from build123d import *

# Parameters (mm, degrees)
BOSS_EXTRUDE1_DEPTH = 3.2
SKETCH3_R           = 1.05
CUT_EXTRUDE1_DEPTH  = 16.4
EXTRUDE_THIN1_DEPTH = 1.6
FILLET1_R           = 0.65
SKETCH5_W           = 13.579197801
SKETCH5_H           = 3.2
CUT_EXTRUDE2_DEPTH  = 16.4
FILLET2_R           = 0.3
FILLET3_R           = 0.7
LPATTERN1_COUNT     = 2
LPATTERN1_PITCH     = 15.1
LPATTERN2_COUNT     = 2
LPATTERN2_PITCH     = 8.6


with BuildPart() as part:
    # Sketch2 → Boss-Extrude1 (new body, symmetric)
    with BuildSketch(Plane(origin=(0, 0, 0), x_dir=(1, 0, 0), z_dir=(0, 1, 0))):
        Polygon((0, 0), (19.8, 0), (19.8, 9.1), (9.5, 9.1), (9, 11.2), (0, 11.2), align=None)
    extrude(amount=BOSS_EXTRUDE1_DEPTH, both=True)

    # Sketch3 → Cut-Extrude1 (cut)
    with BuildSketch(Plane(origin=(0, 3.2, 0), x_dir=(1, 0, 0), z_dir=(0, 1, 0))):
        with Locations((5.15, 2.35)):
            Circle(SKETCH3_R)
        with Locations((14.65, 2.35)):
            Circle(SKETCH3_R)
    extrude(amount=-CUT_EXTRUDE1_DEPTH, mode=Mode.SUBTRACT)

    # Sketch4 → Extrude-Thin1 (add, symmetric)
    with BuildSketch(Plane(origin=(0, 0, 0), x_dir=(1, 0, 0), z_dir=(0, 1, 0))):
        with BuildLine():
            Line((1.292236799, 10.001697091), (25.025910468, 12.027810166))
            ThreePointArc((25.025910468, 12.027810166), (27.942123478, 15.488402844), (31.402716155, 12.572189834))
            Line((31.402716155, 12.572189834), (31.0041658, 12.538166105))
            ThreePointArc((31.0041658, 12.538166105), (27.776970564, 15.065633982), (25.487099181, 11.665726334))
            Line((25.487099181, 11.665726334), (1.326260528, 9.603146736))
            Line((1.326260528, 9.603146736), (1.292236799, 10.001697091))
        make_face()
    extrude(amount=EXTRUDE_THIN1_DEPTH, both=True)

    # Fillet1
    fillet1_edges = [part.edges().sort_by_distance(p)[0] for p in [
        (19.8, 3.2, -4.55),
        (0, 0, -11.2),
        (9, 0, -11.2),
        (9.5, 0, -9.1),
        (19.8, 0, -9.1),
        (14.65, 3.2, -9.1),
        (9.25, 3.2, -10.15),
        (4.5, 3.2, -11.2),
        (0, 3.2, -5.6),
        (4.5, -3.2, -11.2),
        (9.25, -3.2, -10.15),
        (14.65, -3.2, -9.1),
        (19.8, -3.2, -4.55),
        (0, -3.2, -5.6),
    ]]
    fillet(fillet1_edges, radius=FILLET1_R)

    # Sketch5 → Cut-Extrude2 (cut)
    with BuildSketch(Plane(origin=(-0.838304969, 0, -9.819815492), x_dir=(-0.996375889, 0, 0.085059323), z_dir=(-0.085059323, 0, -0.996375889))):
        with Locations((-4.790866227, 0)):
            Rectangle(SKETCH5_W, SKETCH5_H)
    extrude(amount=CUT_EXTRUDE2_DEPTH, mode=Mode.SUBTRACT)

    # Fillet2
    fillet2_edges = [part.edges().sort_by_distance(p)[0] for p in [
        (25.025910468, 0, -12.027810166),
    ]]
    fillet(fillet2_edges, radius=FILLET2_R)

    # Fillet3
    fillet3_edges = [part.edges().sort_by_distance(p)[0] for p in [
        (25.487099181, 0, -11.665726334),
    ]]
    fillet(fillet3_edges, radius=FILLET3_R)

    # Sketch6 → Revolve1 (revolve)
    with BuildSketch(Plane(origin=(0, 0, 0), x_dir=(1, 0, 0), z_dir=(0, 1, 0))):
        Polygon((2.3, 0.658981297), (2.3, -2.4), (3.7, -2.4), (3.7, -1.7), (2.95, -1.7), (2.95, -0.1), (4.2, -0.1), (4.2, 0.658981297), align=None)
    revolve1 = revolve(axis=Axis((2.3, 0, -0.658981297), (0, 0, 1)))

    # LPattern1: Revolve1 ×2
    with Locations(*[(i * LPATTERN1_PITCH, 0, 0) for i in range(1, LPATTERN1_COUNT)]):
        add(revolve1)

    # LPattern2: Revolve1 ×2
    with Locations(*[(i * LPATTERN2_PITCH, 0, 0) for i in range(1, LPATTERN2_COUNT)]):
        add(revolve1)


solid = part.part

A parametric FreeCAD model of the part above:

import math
import FreeCAD as App
import Part
import Sketcher
from FreeCAD import Vector
Q = App.Units.Quantity


def edges_at(feature, points):
    """Names of the edges that pass closest to the given points."""
    edges = feature.Shape.Edges
    near = lambda p: min(range(len(edges)), key=lambda i: edges[i].distToShape(Part.Vertex(*p))[0])
    return sorted({f"Edge{near(p) + 1}" for p in points})

doc = App.newDocument("Part")
body = doc.addObject("PartDesign::Body", "Body")

# Sketch on XZ plane
sketch1 = body.newObject("Sketcher::SketchObject", "Sketch")
sketch1.AttachmentSupport = (doc.getObject("XZ_Plane"), [""])
sketch1.MapMode = "FlatFace"
sketch1.addGeometry([
    Part.LineSegment(Vector(0, 0, 0), Vector(19.8, 0, 0)),  # 0
    Part.LineSegment(Vector(19.8, 0, 0), Vector(19.8, -9.1, 0)),  # 1
    Part.LineSegment(Vector(19.8, -9.1, 0), Vector(9.5, -9.1, 0)),  # 2
    Part.LineSegment(Vector(9.5, -9.1, 0), Vector(9, -11.2, 0)),  # 3
    Part.LineSegment(Vector(9, -11.2, 0), Vector(0, -11.2, 0)),  # 4
    Part.LineSegment(Vector(0, -11.2, 0), Vector(0, 0, 0)),  # 5
], False)
sketch1.addConstraint([
    Sketcher.Constraint("Coincident", 0, 2, 1, 1),
    Sketcher.Constraint("Coincident", 1, 2, 2, 1),
    Sketcher.Constraint("Coincident", 2, 2, 3, 1),
    Sketcher.Constraint("Coincident", 3, 2, 4, 1),
    Sketcher.Constraint("Coincident", 4, 2, 5, 1),
    Sketcher.Constraint("Coincident", 5, 2, 0, 1),
    Sketcher.Constraint("Horizontal", 0),
    Sketcher.Constraint("Vertical", 1),
    Sketcher.Constraint("Horizontal", 2),
    Sketcher.Constraint("Horizontal", 4),
    Sketcher.Constraint("Vertical", 5),
    Sketcher.Constraint("Coincident", 5, 2, -1, 1),
    Sketcher.Constraint("DistanceX", 4, 2, 4, 1, Q("9 mm")),
    Sketcher.Constraint("DistanceX", 0, 1, 0, 2, Q("19.8 mm")),
    Sketcher.Constraint("DistanceX", 2, 2, 2, 1, Q("10.3 mm")),
    Sketcher.Constraint("DistanceY", 1, 2, 1, 1, Q("9.1 mm")),
    Sketcher.Constraint("DistanceY", 5, 1, 5, 2, Q("11.2 mm")),
])
pad1 = body.newObject("PartDesign::Pad", "Pad")
pad1.Profile = sketch1
pad1.Length = 6.4
pad1.Midplane = True

# Sketch on XZ plane
sketch2 = body.newObject("Sketcher::SketchObject", "Sketch001")
sketch2.AttachmentSupport = (doc.getObject("XZ_Plane"), [""])
sketch2.MapMode = "FlatFace"
sketch2.AttachmentOffset = App.Placement(Vector(0, 0, -3.2), App.Rotation())
sketch2.addGeometry([
    Part.Circle(Vector(5.15, -2.35, 0), Vector(0, 0, 1), 1.05),
    Part.Circle(Vector(14.65, -2.35, 0), Vector(0, 0, 1), 1.05),
], False)
sketch2.addConstraint([
    Sketcher.Constraint("Equal", 0, 1),
    Sketcher.Constraint("Horizontal", 0, 3, 1, 3),
    Sketcher.Constraint("Diameter", 0, Q("2.1 mm")),
    Sketcher.Constraint("DistanceX", 0, 3, 1, 3, Q("9.5 mm")),
    Sketcher.Constraint("DistanceX", -1, 1, 0, 3, Q("5.15 mm")),
    Sketcher.Constraint("DistanceY", 0, 3, -1, 1, Q("2.35 mm")),
])
pocket1 = body.newObject("PartDesign::Pocket", "Pocket")
pocket1.Profile = sketch2
pocket1.Length = 16.4
pocket1.Reversed = True

# Sketch on XZ plane
sketch3 = body.newObject("Sketcher::SketchObject", "Sketch002")
sketch3.AttachmentSupport = (doc.getObject("XZ_Plane"), [""])
sketch3.MapMode = "FlatFace"
sketch3.addGeometry([
    Part.LineSegment(Vector(25.02591, -12.02781, 0), Vector(1.292237, -10.001697, 0)),  # 0
    Part.LineSegment(Vector(1.292237, -10.001697, 0), Vector(1.326261, -9.603147, 0)),  # 1
    Part.LineSegment(Vector(1.326261, -9.603147, 0), Vector(25.487099, -11.665726, 0)),  # 2
    Part.ArcOfCircle(Part.Circle(Vector(28.214313, -12.3, 0), Vector(0, 0, 1), 2.8), math.radians(166.907353), math.radians(355.120564)),  # 3
    Part.LineSegment(Vector(31.004166, -12.538166, 0), Vector(31.402716, -12.57219, 0)),  # 4
    Part.ArcOfCircle(Part.Circle(Vector(28.214313, -12.3, 0), Vector(0, 0, 1), 3.2), math.radians(175.120564), math.radians(355.120564)),  # 5
], False)
sketch3.addConstraint([
    Sketcher.Constraint("Coincident", 0, 2, 1, 1),
    Sketcher.Constraint("Coincident", 1, 2, 2, 1),
    Sketcher.Constraint("Coincident", 2, 2, 3, 1),
    Sketcher.Constraint("Coincident", 3, 2, 4, 1),
    Sketcher.Constraint("Coincident", 4, 2, 5, 2),
    Sketcher.Constraint("Coincident", 5, 1, 0, 1),
    Sketcher.Constraint("Coincident", 5, 3, 3, 3),
    Sketcher.Constraint("Perpendicular", 0, 1),
    Sketcher.Constraint("Perpendicular", 1, 2),
    Sketcher.Constraint("Parallel", 2, 4),
    Sketcher.Constraint("Equal", 1, 4),
    Sketcher.Constraint("Radius", 3, Q("2.8 mm")),
    Sketcher.Constraint("Radius", 5, Q("3.2 mm")),
    Sketcher.Constraint("DistanceY", 3, 3, -1, 1, Q("12.3 mm")),
    Sketcher.Constraint("Distance", 0, Q("23.82 mm")),
    Sketcher.Constraint("DistanceX", -1, 1, 2, 2, Q("25.487099 mm")),
    Sketcher.Constraint("Distance", 2, Q("24.248719 mm")),
    Sketcher.Constraint("DistanceX", -1, 1, 1, 2, Q("1.326261 mm")),
    Sketcher.Constraint("DistanceY", 4, 2, -1, 1, Q("12.57219 mm")),
])
pad2 = body.newObject("PartDesign::Pad", "Pad001")
pad2.Profile = sketch3
pad2.Length = 3.2
pad2.Midplane = True
doc.recompute()

fillet = body.newObject("PartDesign::Fillet", "Fillet")
fillet.Base = (pad2, edges_at(pad2, [
    (19.8, 3.2, -4.55),
    (0, 0, -11.2),
    (9, 0, -11.2),
    (9.5, 0, -9.1),
    (19.8, 0, -9.1),
    (14.65, 3.2, -9.1),
    (9.25, 3.2, -10.15),
    (4.5, 3.2, -11.2),
    (0, 3.2, -5.6),
    (4.5, -3.2, -11.2),
    (9.25, -3.2, -10.15),
    (14.65, -3.2, -9.1),
    (19.8, -3.2, -4.55),
    (0, -3.2, -5.6),
]))
fillet.Radius = 0.65

# Sketch on an angled plane
sketch4 = body.newObject("Sketcher::SketchObject", "Sketch003")
sketch4.Placement = App.Placement(Vector(-0.838305, 0, -9.819815), App.Rotation(Vector(-0.996375889, 0, 0.085059323), Vector(0, 1.000000001, 0), Vector(-0.085059323, 0, -0.996375889), "ZXY"))
sketch4.addGeometry([
    Part.LineSegment(Vector(-11.580465, 1.6, 0), Vector(-11.580465, -1.6, 0)),
    Part.LineSegment(Vector(-11.580465, -1.6, 0), Vector(1.998733, -1.6, 0)),
    Part.LineSegment(Vector(1.998733, -1.6, 0), Vector(1.998733, 1.6, 0)),
    Part.LineSegment(Vector(1.998733, 1.6, 0), Vector(-11.580465, 1.6, 0)),
], False)
sketch4.addConstraint([
    Sketcher.Constraint("Coincident", 0, 2, 1, 1),
    Sketcher.Constraint("Coincident", 1, 2, 2, 1),
    Sketcher.Constraint("Coincident", 2, 2, 3, 1),
    Sketcher.Constraint("Coincident", 3, 2, 0, 1),
    Sketcher.Constraint("Vertical", 0),
    Sketcher.Constraint("Horizontal", 1),
    Sketcher.Constraint("Vertical", 2),
    Sketcher.Constraint("Horizontal", 3),
    Sketcher.Constraint("DistanceY", 0, 2, 0, 1, Q("3.2 mm")),
    Sketcher.Constraint("DistanceY", 0, 2, -1, 1, Q("1.6 mm")),
    Sketcher.Constraint("DistanceX", 1, 1, 1, 2, Q("13.579198 mm")),
    Sketcher.Constraint("DistanceX", 0, 2, -1, 1, Q("11.580465 mm")),
])
pocket2 = body.newObject("PartDesign::Pocket", "Pocket001")
pocket2.Profile = sketch4
pocket2.Length = 16.4
pocket2.Reversed = True
doc.recompute()

fillet2 = body.newObject("PartDesign::Fillet", "Fillet001")
fillet2.Base = (pocket2, edges_at(pocket2, [(25.026, 0, -12.028)]))
fillet2.Radius = 0.3
doc.recompute()

fillet3 = body.newObject("PartDesign::Fillet", "Fillet002")
fillet3.Base = (fillet2, edges_at(fillet2, [(25.487, 0, -11.666)]))
fillet3.Radius = 0.7

# Sketch on XZ plane
sketch5 = body.newObject("Sketcher::SketchObject", "Sketch004")
sketch5.AttachmentSupport = (doc.getObject("XZ_Plane"), [""])
sketch5.MapMode = "FlatFace"
sketch5.addGeometry([
    Part.LineSegment(Vector(2.3, -0.658981, 0), Vector(2.3, 2.4, 0)),  # 0
    Part.LineSegment(Vector(2.3, 2.4, 0), Vector(3.7, 2.4, 0)),  # 1
    Part.LineSegment(Vector(3.7, 2.4, 0), Vector(3.7, 1.7, 0)),  # 2
    Part.LineSegment(Vector(3.7, 1.7, 0), Vector(2.95, 1.7, 0)),  # 3
    Part.LineSegment(Vector(2.95, 1.7, 0), Vector(2.95, 0.1, 0)),  # 4
    Part.LineSegment(Vector(2.95, 0.1, 0), Vector(4.2, 0.1, 0)),  # 5
    Part.LineSegment(Vector(4.2, 0.1, 0), Vector(4.2, -0.658981, 0)),  # 6
    Part.LineSegment(Vector(4.2, -0.658981, 0), Vector(2.3, -0.658981, 0)),  # 7
], False)
sketch5.addGeometry(Part.LineSegment(Vector(2.3, -0.658981, 0), Vector(2.3, 2.4, 0)), True)  # axis
sketch5.addConstraint([
    Sketcher.Constraint("Coincident", 0, 2, 1, 1),
    Sketcher.Constraint("Coincident", 1, 2, 2, 1),
    Sketcher.Constraint("Coincident", 2, 2, 3, 1),
    Sketcher.Constraint("Coincident", 3, 2, 4, 1),
    Sketcher.Constraint("Coincident", 4, 2, 5, 1),
    Sketcher.Constraint("Coincident", 5, 2, 6, 1),
    Sketcher.Constraint("Coincident", 6, 2, 7, 1),
    Sketcher.Constraint("Coincident", 7, 2, 0, 1),
    Sketcher.Constraint("Vertical", 0),
    Sketcher.Constraint("Horizontal", 1),
    Sketcher.Constraint("Vertical", 2),
    Sketcher.Constraint("Horizontal", 3),
    Sketcher.Constraint("Vertical", 4),
    Sketcher.Constraint("Horizontal", 5),
    Sketcher.Constraint("Vertical", 6),
    Sketcher.Constraint("Horizontal", 7),
    Sketcher.Constraint("Vertical", 8),
    Sketcher.Constraint("Coincident", 8, 1, 7, 2),
    Sketcher.Constraint("Horizontal", 1, 2, 8, 2),
    Sketcher.Constraint("DistanceX", 1, 1, 1, 2, Q("1.4 mm")),
    Sketcher.Constraint("DistanceX", 7, 2, 7, 1, Q("1.9 mm")),
    Sketcher.Constraint("DistanceY", 2, 2, 2, 1, Q("0.7 mm")),
    Sketcher.Constraint("DistanceY", 4, 2, 4, 1, Q("1.6 mm")),
    Sketcher.Constraint("DistanceX", 3, 2, 3, 1, Q("0.75 mm")),
    Sketcher.Constraint("DistanceX", -1, 1, 0, 2, Q("2.3 mm")),
    Sketcher.Constraint("DistanceY", -1, 1, 0, 2, Q("2.4 mm")),
    Sketcher.Constraint("DistanceY", 0, 1, 0, 2, Q("3.058981 mm")),
])
revolution = body.newObject("PartDesign::Revolution", "Revolution")
revolution.Profile = sketch5
revolution.ReferenceAxis = (sketch5, ["Axis0"])
revolution.Angle = 360
doc.recompute()

linearpattern = body.newObject("PartDesign::LinearPattern", "LinearPattern")
linearpattern.Originals = [revolution]
linearpattern.Direction = (doc.getObject("X_Axis"), [""])
linearpattern.Mode = "offset"
linearpattern.Offset = 15.1
linearpattern.Occurrences = 2
body.Tip = linearpattern
doc.recompute()

linearpattern2 = body.newObject("PartDesign::LinearPattern", "LinearPattern001")
linearpattern2.Originals = [revolution]
linearpattern2.Direction = (doc.getObject("X_Axis"), [""])
linearpattern2.Mode = "offset"
linearpattern2.Offset = 8.6
linearpattern2.Occurrences = 2
body.Tip = linearpattern2

doc.recompute()
